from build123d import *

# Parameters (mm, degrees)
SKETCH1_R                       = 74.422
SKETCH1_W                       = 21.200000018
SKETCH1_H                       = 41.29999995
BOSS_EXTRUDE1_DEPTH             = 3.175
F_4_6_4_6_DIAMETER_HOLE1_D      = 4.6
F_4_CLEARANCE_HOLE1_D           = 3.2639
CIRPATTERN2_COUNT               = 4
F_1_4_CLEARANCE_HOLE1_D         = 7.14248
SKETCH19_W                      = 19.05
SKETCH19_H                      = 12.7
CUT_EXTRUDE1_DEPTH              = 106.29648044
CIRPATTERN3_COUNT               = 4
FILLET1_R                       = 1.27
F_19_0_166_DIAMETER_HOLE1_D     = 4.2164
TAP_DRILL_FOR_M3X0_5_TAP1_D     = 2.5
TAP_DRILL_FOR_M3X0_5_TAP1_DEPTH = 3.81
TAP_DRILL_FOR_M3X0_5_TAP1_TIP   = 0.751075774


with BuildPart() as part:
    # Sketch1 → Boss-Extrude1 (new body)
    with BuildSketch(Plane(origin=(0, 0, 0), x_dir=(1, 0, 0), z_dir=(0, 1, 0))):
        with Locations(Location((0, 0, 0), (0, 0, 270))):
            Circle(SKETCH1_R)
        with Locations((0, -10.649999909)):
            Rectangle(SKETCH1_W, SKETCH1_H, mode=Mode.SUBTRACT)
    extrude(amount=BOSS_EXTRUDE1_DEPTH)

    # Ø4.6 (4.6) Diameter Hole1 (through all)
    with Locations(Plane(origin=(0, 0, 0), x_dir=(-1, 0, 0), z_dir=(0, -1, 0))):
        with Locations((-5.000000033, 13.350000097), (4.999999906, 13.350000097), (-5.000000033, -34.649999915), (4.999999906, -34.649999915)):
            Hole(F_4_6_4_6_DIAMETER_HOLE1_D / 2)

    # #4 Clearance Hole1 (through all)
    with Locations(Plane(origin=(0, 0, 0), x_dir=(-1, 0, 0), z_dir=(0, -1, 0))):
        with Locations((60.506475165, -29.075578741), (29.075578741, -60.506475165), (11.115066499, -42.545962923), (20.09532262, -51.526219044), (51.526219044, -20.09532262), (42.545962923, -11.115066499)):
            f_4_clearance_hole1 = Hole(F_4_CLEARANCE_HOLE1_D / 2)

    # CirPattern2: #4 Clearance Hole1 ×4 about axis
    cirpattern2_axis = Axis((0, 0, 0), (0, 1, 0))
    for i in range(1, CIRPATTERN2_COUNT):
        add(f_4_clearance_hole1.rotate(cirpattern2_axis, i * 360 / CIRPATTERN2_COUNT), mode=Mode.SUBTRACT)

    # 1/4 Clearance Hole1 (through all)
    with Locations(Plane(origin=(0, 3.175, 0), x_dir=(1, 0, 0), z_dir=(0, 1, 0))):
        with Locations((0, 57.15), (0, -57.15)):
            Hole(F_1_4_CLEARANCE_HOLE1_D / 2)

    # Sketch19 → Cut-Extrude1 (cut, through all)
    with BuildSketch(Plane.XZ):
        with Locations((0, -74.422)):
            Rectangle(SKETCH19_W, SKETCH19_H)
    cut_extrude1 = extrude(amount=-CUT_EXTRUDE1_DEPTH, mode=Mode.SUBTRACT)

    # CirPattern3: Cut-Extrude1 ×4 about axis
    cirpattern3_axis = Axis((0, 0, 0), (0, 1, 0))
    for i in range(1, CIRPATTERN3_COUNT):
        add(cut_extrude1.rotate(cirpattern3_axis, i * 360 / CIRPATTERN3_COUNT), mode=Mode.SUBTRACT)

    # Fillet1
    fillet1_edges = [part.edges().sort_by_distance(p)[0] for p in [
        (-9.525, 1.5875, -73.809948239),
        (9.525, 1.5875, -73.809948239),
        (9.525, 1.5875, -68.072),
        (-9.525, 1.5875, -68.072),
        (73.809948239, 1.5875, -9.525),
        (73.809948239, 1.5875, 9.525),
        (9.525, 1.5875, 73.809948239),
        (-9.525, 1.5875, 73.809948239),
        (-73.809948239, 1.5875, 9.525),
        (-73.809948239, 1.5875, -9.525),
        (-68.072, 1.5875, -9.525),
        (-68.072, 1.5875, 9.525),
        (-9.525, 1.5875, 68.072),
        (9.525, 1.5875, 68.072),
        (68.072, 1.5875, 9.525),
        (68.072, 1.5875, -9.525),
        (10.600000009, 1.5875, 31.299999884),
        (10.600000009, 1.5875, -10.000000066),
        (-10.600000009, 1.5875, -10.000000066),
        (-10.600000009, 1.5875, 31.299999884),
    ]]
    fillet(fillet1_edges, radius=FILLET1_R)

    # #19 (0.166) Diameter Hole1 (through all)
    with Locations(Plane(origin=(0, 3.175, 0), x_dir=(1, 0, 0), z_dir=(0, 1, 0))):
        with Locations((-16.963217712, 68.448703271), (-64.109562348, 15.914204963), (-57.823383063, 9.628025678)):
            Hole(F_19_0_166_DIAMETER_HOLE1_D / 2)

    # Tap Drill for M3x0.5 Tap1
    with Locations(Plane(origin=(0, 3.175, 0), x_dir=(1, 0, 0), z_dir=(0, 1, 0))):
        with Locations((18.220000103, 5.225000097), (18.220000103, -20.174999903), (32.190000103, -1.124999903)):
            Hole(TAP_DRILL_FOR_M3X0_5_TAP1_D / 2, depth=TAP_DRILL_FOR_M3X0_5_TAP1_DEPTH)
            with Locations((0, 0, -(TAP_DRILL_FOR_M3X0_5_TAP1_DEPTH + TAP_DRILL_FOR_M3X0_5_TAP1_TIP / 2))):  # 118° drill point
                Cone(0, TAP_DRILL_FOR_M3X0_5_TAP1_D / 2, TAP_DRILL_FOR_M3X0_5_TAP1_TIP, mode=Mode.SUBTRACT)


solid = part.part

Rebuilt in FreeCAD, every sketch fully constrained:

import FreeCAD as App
import Part
import Sketcher

V = App.Vector
Q = App.Units.Quantity


def edges_at(feature, points):
    """Names of the edges that pass closest to the given points."""
    edges = feature.Shape.Edges
    near = lambda p: min(range(len(edges)), key=lambda i: edges[i].distToShape(Part.Vertex(*p))[0])
    return sorted({f"Edge{near(p) + 1}" for p in points})

doc = App.newDocument("Part")
body = doc.addObject("PartDesign::Body", "Body")

# Sketch on XZ plane
sketch1 = body.newObject("Sketcher::SketchObject", "Sketch")
sketch1.AttachmentSupport = (doc.getObject("XZ_Plane"), [""])
sketch1.MapMode = "FlatFace"
sketch1.addGeometry([
    Part.Circle(V(0, 0, 0), V(0, 0, 1), 74),  # 0
    Part.LineSegment(V(11, 31, 0), V(-11, 31, 0)),  # 1
    Part.LineSegment(V(-11, 31, 0), V(-11, -10, 0)),  # 2
    Part.LineSegment(V(-11, -10, 0), V(11, -10, 0)),  # 3
    Part.LineSegment(V(11, -10, 0), V(11, 31, 0)),  # 4
], False)
sketch1.addConstraint([
    Sketcher.Constraint("Coincident", 1, 2, 2, 1),
    Sketcher.Constraint("Coincident", 2, 2, 3, 1),
    Sketcher.Constraint("Coincident", 3, 2, 4, 1),
    Sketcher.Constraint("Coincident", 4, 2, 1, 1),
    Sketcher.Constraint("Horizontal", 1),
    Sketcher.Constraint("Vertical", 2),
    Sketcher.Constraint("Horizontal", 3),
    Sketcher.Constraint("Vertical", 4),
    Sketcher.Constraint("Coincident", 0, 3, -1, 1),
    Sketcher.Constraint("Diameter", 0, Q("5.86 in")),
    Sketcher.Constraint("DistanceX", 1, 2, 1, 1, Q("21.2 mm")),
    Sketcher.Constraint("DistanceY", 2, 2, 2, 1, Q("41.3 mm")),
    Sketcher.Constraint("DistanceX", 1, 2, -1, 1, Q("10.6 mm")),
    Sketcher.Constraint("DistanceY", -1, 1, 1, 2, Q("31.3 mm")),
])
pad1 = body.newObject("PartDesign::Pad", "Pad")
pad1.Profile = sketch1
pad1.Length = Q("0.125 in")
pad1.Reversed = True

# Sketch on XZ plane
sketch2 = body.newObject("Sketcher::SketchObject", "Sketch001")
sketch2.AttachmentSupport = (doc.getObject("XZ_Plane"), [""])
sketch2.MapMode = "FlatFace"
sketch2.addGeometry([
    Part.Circle(V(5, -13.4, 0), V(0, 0, 1), 2.3),
    Part.Circle(V(-5, -13.4, 0), V(0, 0, 1), 2.3),
    Part.Circle(V(5, 34.6, 0), V(0, 0, 1), 2.3),
    Part.Circle(V(-5, 34.6, 0), V(0, 0, 1), 2.3),
], False)
sketch2.addConstraint([
    Sketcher.Constraint("Equal", 0, 1),
    Sketcher.Constraint("Equal", 1, 2),
    Sketcher.Constraint("Equal", 2, 3),
    Sketcher.Constraint("Symmetric", 0, 3, 1, 3, -2),
    Sketcher.Constraint("Symmetric", 2, 3, 3, 3, -2),
    Sketcher.Constraint("Vertical", 0, 3, 2, 3),
    Sketcher.Constraint("Diameter", 0, Q("4.6 mm")),
    Sketcher.Constraint("DistanceX", -1, 1, 0, 3, Q("5 mm")),
    Sketcher.Constraint("DistanceY", 0, 3, -1, 1, Q("13.35 mm")),
    Sketcher.Constraint("DistanceY", -1, 1, 2, 3, Q("34.65 mm")),
])
doc.recompute()
hole = body.newObject("PartDesign::Hole", "Hole")
hole.Profile = sketch2
hole.ThreadType = "None"
hole.Diameter = 4.6
hole.DepthType = "ThroughAll"

# Sketch on XZ plane
sketch3 = body.newObject("Sketcher::SketchObject", "Sketch002")
sketch3.AttachmentSupport = (doc.getObject("XZ_Plane"), [""])
sketch3.MapMode = "FlatFace"
sketch3.addGeometry([
    Part.Circle(V(-60.5, 29.1, 0), V(0, 0, 1), 1.6),  # 0
    Part.Circle(V(-29.1, 60.5, 0), V(0, 0, 1), 1.6),  # 1
    Part.Circle(V(-11.1, 42.5, 0), V(0, 0, 1), 1.6),  # 2
    Part.Circle(V(-20.1, 51.5, 0), V(0, 0, 1), 1.6),  # 3
    Part.Circle(V(-51.5, 20.1, 0), V(0, 0, 1), 1.6),  # 4
    Part.Circle(V(-42.5, 11.1, 0), V(0, 0, 1), 1.6),  # 5
], False)
sketch3.addConstraint([
    Sketcher.Constraint("Equal", 0, 1),
    Sketcher.Constraint("Equal", 1, 2),
    Sketcher.Constraint("Equal", 2, 3),
    Sketcher.Constraint("Equal", 3, 4),
    Sketcher.Constraint("Equal", 4, 5),
    Sketcher.Constraint("Diameter", 0, Q("0.1285 in")),
    Sketcher.Constraint("DistanceY", -1, 1, 0, 3, Q("29.075579 mm")),
    Sketcher.Constraint("DistanceX", 1, 3, -1, 1, Q("29.075579 mm")),
    Sketcher.Constraint("DistanceY", -1, 1, 3, 3, Q("51.526219 mm")),
    Sketcher.Constraint("DistanceX", 4, 3, -1, 1, Q("51.526219 mm")),
    Sketcher.Constraint("DistanceX", 0, 3, 2, 3, Q("49.391409 mm")),
    Sketcher.Constraint("DistanceY", 4, 3, 2, 3, Q("22.45064 mm")),
    Sketcher.Constraint("DistanceX", 5, 3, 3, 3, Q("22.45064 mm")),
    Sketcher.Constraint("DistanceY", 5, 3, 1, 3, Q("49.391409 mm")),
    Sketcher.Constraint("DistanceX", 0, 3, -1, 1, Q("60.506475 mm")),
    Sketcher.Constraint("DistanceY", -1, 1, 1, 3, Q("60.506475 mm")),
    Sketcher.Constraint("DistanceY", -1, 1, 2, 3, Q("42.545963 mm")),
    Sketcher.Constraint("DistanceX", 3, 3, -1, 1, Q("20.095323 mm")),
])
doc.recompute()
hole2 = body.newObject("PartDesign::Hole", "Hole001")
hole2.Profile = sketch3
hole2.ThreadType = "None"
hole2.Diameter = Q("0.1285 in")
hole2.DepthType = "ThroughAll"
doc.recompute()

polarpattern = body.newObject("PartDesign::PolarPattern", "PolarPattern")
polarpattern.Originals = [hole2]
polarpattern.Axis = (doc.getObject("Y_Axis"), [""])
polarpattern.Angle = 360
polarpattern.Occurrences = 4
body.Tip = polarpattern

# Sketch on XZ plane
sketch4 = body.newObject("Sketcher::SketchObject", "Sketch003")
sketch4.AttachmentSupport = (doc.getObject("XZ_Plane"), [""])
sketch4.MapMode = "FlatFace"
sketch4.AttachmentOffset = App.Placement(V(0, 0, -0.125 * 25.4), App.Rotation())
sketch4.addGeometry([
    Part.Circle(V(0, -57.1, 0), V(0, 0, 1), 3.6),
    Part.Circle(V(0, 57.1, 0), V(0, 0, 1), 3.6),
], False)
sketch4.addConstraint([
    Sketcher.Constraint("Equal", 0, 1),
    Sketcher.Constraint("Symmetric", 0, 3, 1, 3, -1, 1),
    Sketcher.Constraint("PointOnObject", 0, 3, -2),
    Sketcher.Constraint("Diameter", 0, Q("0.2812 in")),
    Sketcher.Constraint("DistanceY", 0, 3, 1, 3, Q("4.5 in")),
])
doc.recompute()
hole3 = body.newObject("PartDesign::Hole", "Hole002")
hole3.Profile = sketch4
hole3.ThreadType = "None"
hole3.Diameter = Q("0.2812 in")
hole3.DepthType = "ThroughAll"
hole3.Reversed = True

# Sketch on XZ plane
sketch5 = body.newObject("Sketcher::SketchObject", "Sketch004")
sketch5.AttachmentSupport = (doc.getObject("XZ_Plane"), [""])
sketch5.MapMode = "FlatFace"
sketch5.addGeometry([
    Part.LineSegment(V(-10, -68, 0), V(-10, -81, 0)),
    Part.LineSegment(V(-10, -81, 0), V(10, -81, 0)),
    Part.LineSegment(V(10, -81, 0), V(10, -68, 0)),
    Part.LineSegment(V(10, -68, 0), V(-10, -68, 0)),
], False)
sketch5.addConstraint([
    Sketcher.Constraint("Coincident", 0, 2, 1, 1),
    Sketcher.Constraint("Coincident", 1, 2, 2, 1),
    Sketcher.Constraint("Coincident", 2, 2, 3, 1),
    Sketcher.Constraint("Coincident", 3, 2, 0, 1),
    Sketcher.Constraint("Vertical", 0),
    Sketcher.Constraint("Horizontal", 1),
    Sketcher.Constraint("Vertical", 2),
    Sketcher.Constraint("Horizontal", 3),
    Sketcher.Constraint("DistanceY", 0, 2, 0, 1, Q("0.5 in")),
    Sketcher.Constraint("DistanceX", 1, 1, 1, 2, Q("0.75 in")),
    Sketcher.Constraint("DistanceY", 0, 2, -1, 1, Q("3.18 in")),
    Sketcher.Constraint("DistanceX", 0, 2, -1, 1, Q("0.375 in")),
])
pocket1 = body.newObject("PartDesign::Pocket", "Pocket")
pocket1.Profile = sketch5
pocket1.Type = "ThroughAll"
doc.recompute()

polarpattern2 = body.newObject("PartDesign::PolarPattern", "PolarPattern001")
polarpattern2.Originals = [pocket1]
polarpattern2.Axis = (doc.getObject("Y_Axis"), [""])
polarpattern2.Angle = 360
polarpattern2.Occurrences = 4
body.Tip = polarpattern2
doc.recompute()

fillet = body.newObject("PartDesign::Fillet", "Fillet")
fillet.Base = (polarpattern2, edges_at(polarpattern2, [
    (-9.525, 1.587, -73.81),
    (9.525, 1.587, -73.81),
    (9.525, 1.587, -68.072),
    (-9.525, 1.587, -68.072),
    (73.81, 1.587, -9.525),
    (73.81, 1.587, 9.525),
    (9.525, 1.587, 73.81),
    (-9.525, 1.587, 73.81),
    (-73.81, 1.587, 9.525),
    (-73.81, 1.587, -9.525),
    (-68.072, 1.587, -9.525),
    (-68.072, 1.587, 9.525),
    (-9.525, 1.587, 68.072),
    (9.525, 1.587, 68.072),
    (68.072, 1.587, 9.525),
    (68.072, 1.587, -9.525),
    (10.6, 1.587, 31.3),
    (10.6, 1.587, -10),
    (-10.6, 1.587, -10),
    (-10.6, 1.587, 31.3),
]))
fillet.Radius = Q("0.05 in")

# Sketch on XZ plane
sketch6 = body.newObject("Sketcher::SketchObject", "Sketch005")
sketch6.AttachmentSupport = (doc.getObject("XZ_Plane"), [""])
sketch6.MapMode = "FlatFace"
sketch6.AttachmentOffset = App.Placement(V(0, 0, -0.125 * 25.4), App.Rotation())
sketch6.addGeometry([
    Part.Circle(V(-17, -68.4, 0), V(0, 0, 1), 2.1),
    Part.Circle(V(-64.1, -15.9, 0), V(0, 0, 1), 2.1),
    Part.Circle(V(-57.8, -9.6, 0), V(0, 0, 1), 2.1),
], False)
sketch6.addConstraint([
    Sketcher.Constraint("Equal", 0, 1),
    Sketcher.Constraint("Equal", 1, 2),
    Sketcher.Constraint("Diameter", 0, Q("0.166 in")),
    Sketcher.Constraint("DistanceY", 0, 3, 1, 3, Q("52.534498 mm")),
    Sketcher.Constraint("DistanceX", 1, 3, 2, 3, Q("6.286179 mm")),
    Sketcher.Constraint("DistanceY", 1, 3, 2, 3, Q("6.286179 mm")),
    Sketcher.Constraint("DistanceX", 0, 3, -1, 1, Q("16.963218 mm")),
    Sketcher.Constraint("DistanceY", 0, 3, -1, 1, Q("68.448703 mm")),
    Sketcher.Constraint("DistanceX", 1, 3, -1, 1, Q("64.109562 mm")),
])
doc.recompute()
hole4 = body.newObject("PartDesign::Hole", "Hole003")
hole4.Profile = sketch6
hole4.ThreadType = "None"
hole4.Diameter = Q("0.166 in")
hole4.DepthType = "ThroughAll"
hole4.Reversed = True

# Sketch on XZ plane
sketch7 = body.newObject("Sketcher::SketchObject", "Sketch006")
sketch7.AttachmentSupport = (doc.getObject("XZ_Plane"), [""])
sketch7.MapMode = "FlatFace"
sketch7.AttachmentOffset = App.Placement(V(0, 0, -0.125 * 25.4), App.Rotation())
sketch7.addGeometry([
    Part.Circle(V(18.2, -5.2, 0), V(0, 0, 1), 1.2),
    Part.Circle(V(18.2, 20.2, 0), V(0, 0, 1), 1.2),
    Part.Circle(V(32.2, 1.1, 0), V(0, 0, 1), 1.2),
], False)
sketch7.addConstraint([
    Sketcher.Constraint("Equal", 0, 1),
    Sketcher.Constraint("Equal", 1, 2),
    Sketcher.Constraint("Vertical", 0, 3, 1, 3),
    Sketcher.Constraint("DistanceY", 0, 3, 1, 3, Q("1 in")),
    Sketcher.Constraint("Diameter", 0, Q("2.5 mm")),
    Sketcher.Constraint("DistanceX", 0, 3, 2, 3, Q("0.55 in")),
    Sketcher.Constraint("DistanceY", 0, 3, 2, 3, Q("0.25 in")),
    Sketcher.Constraint("DistanceX", -1, 1, 0, 3, Q("18.22 mm")),
    Sketcher.Constraint("DistanceY", 0, 3, -1, 1, Q("5.225 mm")),
])
doc.recompute()
hole5 = body.newObject("PartDesign::Hole", "Hole004")
hole5.Profile = sketch7
hole5.ThreadType = "None"
hole5.Diameter = 2.5
hole5.DepthType = "Dimension"
hole5.Depth = Q("0.15 in")
hole5.DrillPoint = "Angled"
hole5.DrillPointAngle = 118
hole5.Reversed = True

doc.recompute()
